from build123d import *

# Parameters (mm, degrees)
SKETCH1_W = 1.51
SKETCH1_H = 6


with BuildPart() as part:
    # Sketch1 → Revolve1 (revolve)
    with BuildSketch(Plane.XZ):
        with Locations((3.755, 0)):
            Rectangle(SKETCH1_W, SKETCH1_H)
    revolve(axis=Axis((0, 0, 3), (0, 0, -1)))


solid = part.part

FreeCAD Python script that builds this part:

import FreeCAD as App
import Part
import Sketcher

V = App.Vector
Q = App.Units.Quantity


def add_polygon(sketch, points):
    """Adds a closed chain of lines whose ends are joined by coincident constraints."""
    first, n = sketch.GeometryCount, len(points)
    for a, b in zip(points, points[1:] + points[:1]):
        sketch.addGeometry(Part.LineSegment(App.Vector(*a, 0), App.Vector(*b, 0)), False)
    for i in range(n):
        sketch.addConstraint(Sketcher.Constraint("Coincident", first + i, 2, first + (i + 1) % n, 1))

doc = App.newDocument("Part")
body = doc.addObject("PartDesign::Body", "Body")

sketch1 = body.newObject("Sketcher::SketchObject", "Sketch")
sketch1.AttachmentSupport = (doc.getObject("XZ_Plane"), [""])
sketch1.MapMode = "FlatFace"
add_polygon(sketch1, [(3, 3), (3, -3), (4.5, -3), (4.5, 3)])
sketch1.addConstraint([
    Sketcher.Constraint("Vertical", 0),
    Sketcher.Constraint("Horizontal", 1),
    Sketcher.Constraint("Vertical", 2),
    Sketcher.Constraint("Horizontal", 3),
    Sketcher.Constraint("DistanceY", 0, 2, 0, 1, Q("6 mm")),
    Sketcher.Constraint("DistanceX", -1, 1, 0, 2, Q("3 mm")),
    Sketcher.Constraint("DistanceY", 0, 2, -1, 1, Q("3 mm")),
    Sketcher.Constraint("DistanceX", 1, 1, 1, 2, Q("1.51 mm")),
])
revolution = body.newObject("PartDesign::Revolution", "Revolution")
revolution.Profile = sketch1
revolution.ReferenceAxis = (sketch1, ["V_Axis"])
revolution.Angle = 360

doc.recompute()
